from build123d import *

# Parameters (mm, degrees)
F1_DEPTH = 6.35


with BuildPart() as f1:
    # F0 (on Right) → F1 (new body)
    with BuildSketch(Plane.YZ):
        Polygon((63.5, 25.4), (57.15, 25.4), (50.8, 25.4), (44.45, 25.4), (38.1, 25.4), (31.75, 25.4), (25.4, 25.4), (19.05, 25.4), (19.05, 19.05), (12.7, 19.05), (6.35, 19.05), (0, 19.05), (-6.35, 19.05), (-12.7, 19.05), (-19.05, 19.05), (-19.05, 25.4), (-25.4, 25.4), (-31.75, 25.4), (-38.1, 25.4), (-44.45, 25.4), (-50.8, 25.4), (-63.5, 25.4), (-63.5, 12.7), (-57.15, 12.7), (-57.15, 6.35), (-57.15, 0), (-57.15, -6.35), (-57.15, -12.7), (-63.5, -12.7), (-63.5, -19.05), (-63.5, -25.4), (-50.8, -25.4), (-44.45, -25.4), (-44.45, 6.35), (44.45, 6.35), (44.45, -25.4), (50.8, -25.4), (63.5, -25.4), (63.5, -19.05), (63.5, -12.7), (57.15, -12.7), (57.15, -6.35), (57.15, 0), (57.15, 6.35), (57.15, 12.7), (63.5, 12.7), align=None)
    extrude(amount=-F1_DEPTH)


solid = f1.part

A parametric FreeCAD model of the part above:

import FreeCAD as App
import Part
import Sketcher
Q = App.Units.Quantity


def add_polygon(sketch, points):
    """Adds a closed chain of lines whose ends are joined by coincident constraints."""
    first, n = sketch.GeometryCount, len(points)
    for a, b in zip(points, points[1:] + points[:1]):
        sketch.addGeometry(Part.LineSegment(App.Vector(*a, 0), App.Vector(*b, 0)), False)
    for i in range(n):
        sketch.addConstraint(Sketcher.Constraint("Coincident", first + i, 2, first + (i + 1) % n, 1))

doc = App.newDocument("Part")
body = doc.addObject("PartDesign::Body", "Body")

sketch1 = body.newObject("Sketcher::SketchObject", "Sketch")
sketch1.AttachmentSupport = (doc.getObject("YZ_Plane"), [""])
sketch1.MapMode = "FlatFace"
add_polygon(sketch1, [(64, 25), (19, 25), (19, 19), (-19, 19), (-19, 25), (-64, 25), (-64, 13), (-57, 13), (-57, -13), (-64, -13), (-64, -25), (-44, -25), (-44, 6), (44, 6), (44, -25), (64, -25), (64, -13), (57, -13), (57, 13), (64, 13)])
sketch1.addConstraint([
    Sketcher.Constraint("Horizontal", 0),
    Sketcher.Constraint("Vertical", 1),
    Sketcher.Constraint("Horizontal", 2),
    Sketcher.Constraint("Vertical", 3),
    Sketcher.Constraint("Horizontal", 4),
    Sketcher.Constraint("Vertical", 5),
    Sketcher.Constraint("Horizontal", 6),
    Sketcher.Constraint("Vertical", 7),
    Sketcher.Constraint("Horizontal", 8),
    Sketcher.Constraint("Vertical", 9),
    Sketcher.Constraint("Horizontal", 10),
    Sketcher.Constraint("Vertical", 11),
    Sketcher.Constraint("Horizontal", 12),
    Sketcher.Constraint("Vertical", 13),
    Sketcher.Constraint("Horizontal", 14),
    Sketcher.Constraint("Vertical", 15),
    Sketcher.Constraint("Horizontal", 16),
    Sketcher.Constraint("Vertical", 17),
    Sketcher.Constraint("Horizontal", 18),
    Sketcher.Constraint("Vertical", 19),
    Sketcher.Constraint("Symmetric", 4, 2, 14, 2, -1, 1),
    Sketcher.Constraint("Symmetric", 6, 2, 16, 2, -1, 1),
    Sketcher.Constraint("Symmetric", 8, 2, 18, 2, -1, 1),
    Sketcher.Constraint("Symmetric", 0, 2, 3, 2, -2),
    Sketcher.Constraint("Symmetric", 10, 2, 13, 2, -2),
    Sketcher.Constraint("Symmetric", 8, 2, 15, 2, -2),
    Sketcher.Constraint("Equal", 18, 1),
    Sketcher.Constraint("DistanceY", 7, 2, 7, 1, Q("1 in")),
    Sketcher.Constraint("DistanceX", 2, 2, 2, 1, Q("1.5 in")),
    Sketcher.Constraint("DistanceX", 12, 1, 12, 2, Q("3.5 in")),
    Sketcher.Constraint("DistanceY", 5, 2, 5, 1, Q("0.5 in")),
    Sketcher.Constraint("DistanceX", 6, 2, 1, 2, Q("3 in")),
    Sketcher.Constraint("DistanceX", 0, 2, 0, 1, Q("1.75 in")),
    Sketcher.Constraint("DistanceY", 11, 1, 11, 2, Q("1.25 in")),
])
pad1 = body.newObject("PartDesign::Pad", "Pad")
pad1.Profile = sketch1
pad1.Length = Q("0.25 in")
pad1.Reversed = True

doc.recompute()
